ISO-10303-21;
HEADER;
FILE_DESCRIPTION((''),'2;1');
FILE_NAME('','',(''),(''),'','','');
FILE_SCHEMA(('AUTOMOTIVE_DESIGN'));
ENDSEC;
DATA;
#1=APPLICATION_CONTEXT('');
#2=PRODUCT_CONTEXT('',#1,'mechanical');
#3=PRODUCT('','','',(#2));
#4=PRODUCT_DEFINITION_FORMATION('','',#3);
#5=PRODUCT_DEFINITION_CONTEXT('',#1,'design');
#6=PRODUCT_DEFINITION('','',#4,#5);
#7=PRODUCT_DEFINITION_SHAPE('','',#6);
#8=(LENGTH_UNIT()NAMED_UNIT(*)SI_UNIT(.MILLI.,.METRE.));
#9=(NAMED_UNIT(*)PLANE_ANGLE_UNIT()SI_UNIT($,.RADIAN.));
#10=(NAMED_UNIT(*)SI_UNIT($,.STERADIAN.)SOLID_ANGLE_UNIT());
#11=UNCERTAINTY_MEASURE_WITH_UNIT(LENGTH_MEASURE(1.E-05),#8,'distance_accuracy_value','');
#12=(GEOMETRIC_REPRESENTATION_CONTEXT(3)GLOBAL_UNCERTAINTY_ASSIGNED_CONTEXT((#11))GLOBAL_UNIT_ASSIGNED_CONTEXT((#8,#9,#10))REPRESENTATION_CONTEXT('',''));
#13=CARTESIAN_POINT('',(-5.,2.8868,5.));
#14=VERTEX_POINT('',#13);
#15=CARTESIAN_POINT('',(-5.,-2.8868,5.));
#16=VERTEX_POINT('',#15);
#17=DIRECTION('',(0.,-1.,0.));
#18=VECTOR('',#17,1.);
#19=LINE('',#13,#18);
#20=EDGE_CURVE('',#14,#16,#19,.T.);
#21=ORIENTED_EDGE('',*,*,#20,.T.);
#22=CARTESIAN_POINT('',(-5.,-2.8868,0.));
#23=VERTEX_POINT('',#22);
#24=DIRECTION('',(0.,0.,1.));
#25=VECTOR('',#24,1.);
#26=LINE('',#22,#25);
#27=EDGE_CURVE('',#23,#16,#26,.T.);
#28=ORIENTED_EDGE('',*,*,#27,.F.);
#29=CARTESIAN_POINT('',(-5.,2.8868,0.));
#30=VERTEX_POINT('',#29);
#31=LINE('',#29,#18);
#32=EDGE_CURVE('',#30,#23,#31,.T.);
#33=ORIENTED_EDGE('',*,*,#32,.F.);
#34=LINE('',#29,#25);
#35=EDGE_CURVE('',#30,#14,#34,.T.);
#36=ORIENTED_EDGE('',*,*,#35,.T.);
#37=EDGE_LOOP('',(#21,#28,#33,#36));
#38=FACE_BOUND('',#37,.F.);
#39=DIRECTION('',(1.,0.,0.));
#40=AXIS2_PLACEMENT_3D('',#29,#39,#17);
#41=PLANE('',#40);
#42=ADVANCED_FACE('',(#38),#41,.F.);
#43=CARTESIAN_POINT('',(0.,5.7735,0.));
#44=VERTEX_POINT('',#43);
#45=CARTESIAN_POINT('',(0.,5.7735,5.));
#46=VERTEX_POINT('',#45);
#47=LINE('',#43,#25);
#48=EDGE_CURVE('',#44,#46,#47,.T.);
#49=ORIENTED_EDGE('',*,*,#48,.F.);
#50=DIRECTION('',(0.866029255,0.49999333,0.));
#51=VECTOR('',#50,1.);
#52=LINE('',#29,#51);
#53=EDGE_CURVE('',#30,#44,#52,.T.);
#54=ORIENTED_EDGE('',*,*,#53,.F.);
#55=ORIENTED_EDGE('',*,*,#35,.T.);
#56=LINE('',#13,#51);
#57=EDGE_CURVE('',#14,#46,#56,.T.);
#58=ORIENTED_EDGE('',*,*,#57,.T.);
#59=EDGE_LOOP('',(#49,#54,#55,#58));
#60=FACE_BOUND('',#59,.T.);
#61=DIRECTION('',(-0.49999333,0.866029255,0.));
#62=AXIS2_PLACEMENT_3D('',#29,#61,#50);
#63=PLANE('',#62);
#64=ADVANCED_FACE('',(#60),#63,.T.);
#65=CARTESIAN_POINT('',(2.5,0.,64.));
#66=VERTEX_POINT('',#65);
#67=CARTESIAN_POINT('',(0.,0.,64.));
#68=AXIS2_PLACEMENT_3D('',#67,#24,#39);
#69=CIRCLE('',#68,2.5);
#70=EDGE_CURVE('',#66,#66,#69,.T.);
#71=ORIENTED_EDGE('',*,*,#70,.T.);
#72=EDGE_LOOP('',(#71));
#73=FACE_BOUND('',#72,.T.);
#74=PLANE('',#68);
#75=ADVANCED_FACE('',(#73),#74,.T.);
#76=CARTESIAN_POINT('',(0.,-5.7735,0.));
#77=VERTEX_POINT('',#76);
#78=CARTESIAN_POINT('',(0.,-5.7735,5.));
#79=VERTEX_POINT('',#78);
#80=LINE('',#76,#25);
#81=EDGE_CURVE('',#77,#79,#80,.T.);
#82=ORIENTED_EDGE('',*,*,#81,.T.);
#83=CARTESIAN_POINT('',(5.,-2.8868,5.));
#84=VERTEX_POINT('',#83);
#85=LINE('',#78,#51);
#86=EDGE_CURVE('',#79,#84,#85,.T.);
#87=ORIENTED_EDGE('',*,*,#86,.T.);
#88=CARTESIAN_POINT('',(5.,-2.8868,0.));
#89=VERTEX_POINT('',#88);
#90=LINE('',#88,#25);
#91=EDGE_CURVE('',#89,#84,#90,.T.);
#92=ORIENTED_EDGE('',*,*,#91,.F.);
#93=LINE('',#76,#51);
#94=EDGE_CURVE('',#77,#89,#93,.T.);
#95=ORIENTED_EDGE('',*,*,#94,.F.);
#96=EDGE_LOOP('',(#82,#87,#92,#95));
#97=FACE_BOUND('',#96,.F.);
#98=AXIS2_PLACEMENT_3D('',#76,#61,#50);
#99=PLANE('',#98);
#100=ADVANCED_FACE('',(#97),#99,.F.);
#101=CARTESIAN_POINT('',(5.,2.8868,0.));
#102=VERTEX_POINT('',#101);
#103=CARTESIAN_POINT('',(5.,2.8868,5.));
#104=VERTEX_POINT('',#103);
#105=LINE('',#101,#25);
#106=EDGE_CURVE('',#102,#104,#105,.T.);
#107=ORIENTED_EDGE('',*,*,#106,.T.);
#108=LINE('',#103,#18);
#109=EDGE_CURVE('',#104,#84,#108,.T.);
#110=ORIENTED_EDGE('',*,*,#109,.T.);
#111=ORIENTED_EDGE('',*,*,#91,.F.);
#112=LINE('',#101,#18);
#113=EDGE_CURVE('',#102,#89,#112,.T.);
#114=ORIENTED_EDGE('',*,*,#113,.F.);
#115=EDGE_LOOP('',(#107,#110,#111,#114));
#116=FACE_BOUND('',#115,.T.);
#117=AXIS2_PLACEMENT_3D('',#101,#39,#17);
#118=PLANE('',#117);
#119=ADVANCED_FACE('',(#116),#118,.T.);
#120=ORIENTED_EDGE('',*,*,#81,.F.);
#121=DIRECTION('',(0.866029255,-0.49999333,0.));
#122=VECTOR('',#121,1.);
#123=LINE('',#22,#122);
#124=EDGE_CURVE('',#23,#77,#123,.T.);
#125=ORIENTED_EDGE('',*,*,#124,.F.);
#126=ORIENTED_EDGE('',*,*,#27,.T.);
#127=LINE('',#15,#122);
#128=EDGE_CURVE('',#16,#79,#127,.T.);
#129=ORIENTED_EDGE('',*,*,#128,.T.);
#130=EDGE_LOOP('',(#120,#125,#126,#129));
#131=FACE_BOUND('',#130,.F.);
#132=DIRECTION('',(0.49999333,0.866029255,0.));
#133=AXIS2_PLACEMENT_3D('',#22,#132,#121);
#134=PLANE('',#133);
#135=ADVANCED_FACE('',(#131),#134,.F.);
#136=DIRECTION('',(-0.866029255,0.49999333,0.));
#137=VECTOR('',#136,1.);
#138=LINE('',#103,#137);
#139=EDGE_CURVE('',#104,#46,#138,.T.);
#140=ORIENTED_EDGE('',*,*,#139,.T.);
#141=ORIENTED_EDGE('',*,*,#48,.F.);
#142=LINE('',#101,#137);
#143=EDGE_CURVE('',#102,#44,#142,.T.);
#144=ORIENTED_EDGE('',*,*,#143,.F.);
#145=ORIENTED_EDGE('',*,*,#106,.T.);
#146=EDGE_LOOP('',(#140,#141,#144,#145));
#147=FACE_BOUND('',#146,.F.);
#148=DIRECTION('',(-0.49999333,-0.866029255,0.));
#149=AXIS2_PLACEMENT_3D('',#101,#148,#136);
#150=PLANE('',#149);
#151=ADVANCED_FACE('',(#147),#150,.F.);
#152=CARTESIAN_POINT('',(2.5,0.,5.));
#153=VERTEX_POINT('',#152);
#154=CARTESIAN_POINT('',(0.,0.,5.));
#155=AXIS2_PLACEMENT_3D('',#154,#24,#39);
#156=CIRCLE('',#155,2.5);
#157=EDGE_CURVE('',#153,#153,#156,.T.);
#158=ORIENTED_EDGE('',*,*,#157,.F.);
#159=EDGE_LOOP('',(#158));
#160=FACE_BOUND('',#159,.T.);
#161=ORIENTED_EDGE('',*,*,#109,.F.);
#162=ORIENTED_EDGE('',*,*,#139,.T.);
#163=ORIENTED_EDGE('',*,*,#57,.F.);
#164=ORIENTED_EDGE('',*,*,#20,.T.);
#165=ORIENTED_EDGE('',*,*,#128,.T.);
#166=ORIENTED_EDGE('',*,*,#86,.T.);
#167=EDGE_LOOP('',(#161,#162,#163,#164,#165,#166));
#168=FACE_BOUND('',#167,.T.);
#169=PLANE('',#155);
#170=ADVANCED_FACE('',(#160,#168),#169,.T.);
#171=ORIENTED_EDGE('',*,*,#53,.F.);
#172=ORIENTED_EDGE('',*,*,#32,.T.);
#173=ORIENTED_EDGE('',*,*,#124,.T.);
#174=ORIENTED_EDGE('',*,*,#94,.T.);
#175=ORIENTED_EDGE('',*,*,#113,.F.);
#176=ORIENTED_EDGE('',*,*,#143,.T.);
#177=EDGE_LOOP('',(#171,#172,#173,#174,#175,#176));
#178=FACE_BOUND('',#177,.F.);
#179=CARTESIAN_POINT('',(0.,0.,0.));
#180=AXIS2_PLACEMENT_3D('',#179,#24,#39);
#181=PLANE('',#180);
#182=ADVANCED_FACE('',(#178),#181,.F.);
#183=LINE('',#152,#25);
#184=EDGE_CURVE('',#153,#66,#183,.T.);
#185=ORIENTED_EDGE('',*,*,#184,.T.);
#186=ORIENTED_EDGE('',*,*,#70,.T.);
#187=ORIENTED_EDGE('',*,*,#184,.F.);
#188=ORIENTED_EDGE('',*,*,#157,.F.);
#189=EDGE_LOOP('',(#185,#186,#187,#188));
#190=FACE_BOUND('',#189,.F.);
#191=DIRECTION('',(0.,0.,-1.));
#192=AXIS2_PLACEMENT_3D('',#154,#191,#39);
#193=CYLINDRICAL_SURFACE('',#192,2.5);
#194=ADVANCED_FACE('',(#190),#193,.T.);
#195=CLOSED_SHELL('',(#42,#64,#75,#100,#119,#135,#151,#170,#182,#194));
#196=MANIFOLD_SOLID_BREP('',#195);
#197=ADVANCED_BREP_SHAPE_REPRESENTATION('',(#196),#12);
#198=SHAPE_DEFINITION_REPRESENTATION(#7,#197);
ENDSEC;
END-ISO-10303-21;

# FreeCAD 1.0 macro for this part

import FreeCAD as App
import Part
import Sketcher
from FreeCAD import Vector
Q = App.Units.Quantity

doc = App.newDocument("Part")
body = doc.addObject("PartDesign::Body", "Body")

# Sketch on XY plane
sketch1 = doc.addObject("Sketcher::SketchObject", "Sketch")
body.addObject(sketch1)
sketch1.AttachmentSupport = (doc.XY_Plane, [""])
sketch1.MapMode = "FlatFace"
sketch1.addGeometry(Part.LineSegment(Vector(5, -3, 0), Vector(5, 3, 0)), False)
sketch1.addGeometry(Part.LineSegment(Vector(5, 3, 0), Vector(0, 6, 0)), False)
sketch1.addGeometry(Part.LineSegment(Vector(0, 6, 0), Vector(-5, 3, 0)), False)
sketch1.addGeometry(Part.LineSegment(Vector(-5, 3, 0), Vector(-5, -3, 0)), False)
sketch1.addGeometry(Part.LineSegment(Vector(-5, -3, 0), Vector(0, -6, 0)), False)
sketch1.addGeometry(Part.LineSegment(Vector(0, -6, 0), Vector(5, -3, 0)), False)
sketch1.addConstraint(Sketcher.Constraint("Coincident", 0, 2, 1, 1))
sketch1.addConstraint(Sketcher.Constraint("Coincident", 1, 2, 2, 1))
sketch1.addConstraint(Sketcher.Constraint("Coincident", 2, 2, 3, 1))
sketch1.addConstraint(Sketcher.Constraint("Coincident", 3, 2, 4, 1))
sketch1.addConstraint(Sketcher.Constraint("Coincident", 4, 2, 5, 1))
sketch1.addConstraint(Sketcher.Constraint("Coincident", 5, 2, 0, 1))
sketch1.addConstraint(Sketcher.Constraint("Vertical", 0))
sketch1.addConstraint(Sketcher.Constraint("Vertical", 3))
sketch1.addConstraint(Sketcher.Constraint("Symmetric", 0, 2, 3, 2, -1, 1))
sketch1.addConstraint(Sketcher.Constraint("Symmetric", 1, 2, 4, 2, -1, 1))
sketch1.addConstraint(Sketcher.Constraint("PointOnObject", 1, 2, -2))
sketch1.addConstraint(Sketcher.Constraint("Parallel", 2, 5))
sketch1.addConstraint(Sketcher.Constraint("Horizontal", 0, 2, 2, 2))
sketch1.addConstraint(Sketcher.Constraint("DistanceX", -1, 1, 0, 2, Q("5 mm")))
sketch1.addConstraint(Sketcher.Constraint("Angle", 1, Q("150.0004 deg")))
sketch1.addConstraint(Sketcher.Constraint("DistanceY", 0, 1, 0, 2, Q("5.7736 mm")))
pad1 = doc.addObject("PartDesign::Pad", "Pad")
body.addObject(pad1)
pad1.Profile = sketch1
pad1.Length = 5

# Sketch on XY plane
sketch2 = doc.addObject("Sketcher::SketchObject", "Sketch001")
body.addObject(sketch2)
sketch2.AttachmentSupport = (doc.XY_Plane, [""])
sketch2.MapMode = "FlatFace"
sketch2.AttachmentOffset = App.Placement(Vector(0, 0, 5), App.Rotation())
sketch2.addGeometry(Part.Circle(Vector(0, 0, 0), Vector(0, 0, 1), 2.5), False)
sketch2.addConstraint(Sketcher.Constraint("Coincident", 0, 3, -1, 1))
sketch2.addConstraint(Sketcher.Constraint("Diameter", 0, Q("5 mm")))
pad2 = doc.addObject("PartDesign::Pad", "Pad001")
body.addObject(pad2)
pad2.Profile = sketch2
pad2.Length = 59

doc.recompute()
